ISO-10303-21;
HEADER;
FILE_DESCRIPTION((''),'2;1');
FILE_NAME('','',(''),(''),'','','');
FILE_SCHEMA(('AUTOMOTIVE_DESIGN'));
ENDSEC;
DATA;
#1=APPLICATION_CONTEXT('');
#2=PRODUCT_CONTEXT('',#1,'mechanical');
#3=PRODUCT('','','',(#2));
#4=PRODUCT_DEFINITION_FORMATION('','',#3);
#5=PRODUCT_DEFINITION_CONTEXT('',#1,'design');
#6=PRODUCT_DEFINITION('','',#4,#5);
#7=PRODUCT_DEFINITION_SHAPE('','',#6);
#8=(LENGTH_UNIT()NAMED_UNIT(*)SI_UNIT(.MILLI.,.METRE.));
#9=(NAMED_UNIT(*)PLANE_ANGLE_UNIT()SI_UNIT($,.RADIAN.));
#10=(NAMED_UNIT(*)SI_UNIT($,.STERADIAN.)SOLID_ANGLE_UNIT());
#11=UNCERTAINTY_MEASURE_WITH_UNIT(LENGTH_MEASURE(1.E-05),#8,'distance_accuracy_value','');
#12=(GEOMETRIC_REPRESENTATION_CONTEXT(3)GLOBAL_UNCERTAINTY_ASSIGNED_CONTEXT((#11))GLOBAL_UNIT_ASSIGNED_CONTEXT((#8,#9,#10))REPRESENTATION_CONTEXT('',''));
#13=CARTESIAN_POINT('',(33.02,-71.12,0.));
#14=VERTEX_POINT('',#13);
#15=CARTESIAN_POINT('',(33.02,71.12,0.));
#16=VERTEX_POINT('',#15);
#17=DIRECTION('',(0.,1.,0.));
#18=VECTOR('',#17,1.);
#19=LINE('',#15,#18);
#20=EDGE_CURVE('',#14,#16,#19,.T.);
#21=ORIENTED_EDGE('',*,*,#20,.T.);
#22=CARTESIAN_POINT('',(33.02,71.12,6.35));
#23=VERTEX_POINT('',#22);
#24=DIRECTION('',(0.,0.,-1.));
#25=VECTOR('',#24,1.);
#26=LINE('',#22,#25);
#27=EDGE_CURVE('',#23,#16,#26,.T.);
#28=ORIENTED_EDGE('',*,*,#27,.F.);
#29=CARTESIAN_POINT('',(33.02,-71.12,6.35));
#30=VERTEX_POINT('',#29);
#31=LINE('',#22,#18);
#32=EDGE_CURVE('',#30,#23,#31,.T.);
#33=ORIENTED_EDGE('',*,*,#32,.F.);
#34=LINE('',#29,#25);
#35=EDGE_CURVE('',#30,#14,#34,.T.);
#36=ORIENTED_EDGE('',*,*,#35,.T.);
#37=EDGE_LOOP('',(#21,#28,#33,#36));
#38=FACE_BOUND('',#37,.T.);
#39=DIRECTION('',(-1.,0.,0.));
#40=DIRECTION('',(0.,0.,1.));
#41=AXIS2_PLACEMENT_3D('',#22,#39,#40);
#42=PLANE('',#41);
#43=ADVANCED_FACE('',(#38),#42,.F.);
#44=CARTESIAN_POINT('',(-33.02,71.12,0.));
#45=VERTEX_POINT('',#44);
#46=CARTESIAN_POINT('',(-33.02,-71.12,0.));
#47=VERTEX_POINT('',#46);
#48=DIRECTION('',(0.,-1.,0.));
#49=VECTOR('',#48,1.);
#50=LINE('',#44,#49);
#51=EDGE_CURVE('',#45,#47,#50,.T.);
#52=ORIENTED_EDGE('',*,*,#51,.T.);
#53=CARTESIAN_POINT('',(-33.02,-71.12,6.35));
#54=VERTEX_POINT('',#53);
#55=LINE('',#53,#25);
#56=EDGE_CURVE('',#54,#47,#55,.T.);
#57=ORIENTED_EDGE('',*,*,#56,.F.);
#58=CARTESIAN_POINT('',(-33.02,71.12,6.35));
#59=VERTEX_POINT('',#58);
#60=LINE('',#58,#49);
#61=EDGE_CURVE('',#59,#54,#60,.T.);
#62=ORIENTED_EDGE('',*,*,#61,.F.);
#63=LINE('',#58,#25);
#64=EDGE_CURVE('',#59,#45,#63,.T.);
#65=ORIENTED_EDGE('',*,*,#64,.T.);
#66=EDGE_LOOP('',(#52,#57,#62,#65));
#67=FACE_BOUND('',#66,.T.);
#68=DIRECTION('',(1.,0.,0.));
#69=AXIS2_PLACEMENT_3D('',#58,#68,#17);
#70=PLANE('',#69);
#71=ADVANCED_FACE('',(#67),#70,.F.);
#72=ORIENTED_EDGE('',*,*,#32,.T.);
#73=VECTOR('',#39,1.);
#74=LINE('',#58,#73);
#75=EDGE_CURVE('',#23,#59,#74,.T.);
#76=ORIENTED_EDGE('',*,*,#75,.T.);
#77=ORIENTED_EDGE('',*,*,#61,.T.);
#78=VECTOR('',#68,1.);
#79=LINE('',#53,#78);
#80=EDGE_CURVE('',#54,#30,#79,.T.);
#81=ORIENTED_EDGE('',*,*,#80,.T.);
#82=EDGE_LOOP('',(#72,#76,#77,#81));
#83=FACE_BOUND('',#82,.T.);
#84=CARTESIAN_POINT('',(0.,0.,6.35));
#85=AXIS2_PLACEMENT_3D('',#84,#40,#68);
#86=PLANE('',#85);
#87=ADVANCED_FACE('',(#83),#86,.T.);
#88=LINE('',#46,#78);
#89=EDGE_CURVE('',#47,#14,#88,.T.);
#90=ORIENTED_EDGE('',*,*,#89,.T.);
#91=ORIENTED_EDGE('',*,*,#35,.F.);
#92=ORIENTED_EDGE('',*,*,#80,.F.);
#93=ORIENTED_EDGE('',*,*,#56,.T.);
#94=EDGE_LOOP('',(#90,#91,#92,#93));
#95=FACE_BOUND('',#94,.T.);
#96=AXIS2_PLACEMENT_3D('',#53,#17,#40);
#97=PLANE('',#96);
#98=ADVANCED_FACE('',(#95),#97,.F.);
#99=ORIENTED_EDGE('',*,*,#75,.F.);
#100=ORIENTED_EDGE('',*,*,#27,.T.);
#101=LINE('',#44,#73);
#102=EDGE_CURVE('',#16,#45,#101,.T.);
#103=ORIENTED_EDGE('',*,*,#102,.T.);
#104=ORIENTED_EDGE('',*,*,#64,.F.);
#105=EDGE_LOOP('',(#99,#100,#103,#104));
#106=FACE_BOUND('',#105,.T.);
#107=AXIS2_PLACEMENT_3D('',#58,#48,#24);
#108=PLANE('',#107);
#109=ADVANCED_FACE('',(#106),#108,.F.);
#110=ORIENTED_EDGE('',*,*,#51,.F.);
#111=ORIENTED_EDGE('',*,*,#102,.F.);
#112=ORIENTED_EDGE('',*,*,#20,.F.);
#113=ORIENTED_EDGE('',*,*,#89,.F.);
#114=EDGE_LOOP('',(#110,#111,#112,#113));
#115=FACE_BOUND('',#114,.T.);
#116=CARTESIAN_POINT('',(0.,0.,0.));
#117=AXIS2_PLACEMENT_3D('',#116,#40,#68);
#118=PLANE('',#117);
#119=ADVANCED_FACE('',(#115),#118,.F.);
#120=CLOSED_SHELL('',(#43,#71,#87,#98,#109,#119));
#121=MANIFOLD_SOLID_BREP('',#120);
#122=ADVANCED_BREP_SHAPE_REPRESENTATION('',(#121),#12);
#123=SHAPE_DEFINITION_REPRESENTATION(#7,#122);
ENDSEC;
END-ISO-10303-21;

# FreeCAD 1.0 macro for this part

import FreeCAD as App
import Part
import Sketcher
Q = App.Units.Quantity


def add_polygon(sketch, points):
    """Adds a closed chain of lines whose ends are joined by coincident constraints."""
    first, n = sketch.GeometryCount, len(points)
    for a, b in zip(points, points[1:] + points[:1]):
        sketch.addGeometry(Part.LineSegment(App.Vector(*a, 0), App.Vector(*b, 0)), False)
    for i in range(n):
        sketch.addConstraint(Sketcher.Constraint("Coincident", first + i, 2, first + (i + 1) % n, 1))

doc = App.newDocument("Part")
params = doc.addObject("Spreadsheet::Sheet", "Params")
for row, (alias, value) in enumerate([
    ("sketch1_width", "2.6 in"),
    ("sketch1_height", "5.6 in"),
    ("pad1_length", "0.25 in"),
], start=1):
    params.set(f"A{row}", alias)
    params.set(f"B{row}", "=" + value)
    params.setAlias(f"B{row}", alias)

body = doc.addObject("PartDesign::Body", "Body")

# Sketch on XY plane
sketch1 = body.newObject("Sketcher::SketchObject", "Sketch")
sketch1.AttachmentSupport = (doc.getObject("XY_Plane"), [""])
sketch1.MapMode = "FlatFace"
add_polygon(sketch1, [(-33, 71), (-33, -71), (33, -71), (33, 71)])  # lines 0-3
sketch1.addConstraint(Sketcher.Constraint("Vertical", 0))
sketch1.addConstraint(Sketcher.Constraint("Horizontal", 1))
sketch1.addConstraint(Sketcher.Constraint("Vertical", 2))
sketch1.addConstraint(Sketcher.Constraint("Horizontal", 3))
sketch1.addConstraint(Sketcher.Constraint("Symmetric", 0, 2, 2, 2, -1, 1))
sketch1.addConstraint(Sketcher.Constraint("DistanceX", 1, 1, 1, 2, Q("2.6 in")))
sketch1.addConstraint(Sketcher.Constraint("DistanceY", 0, 2, 0, 1, Q("5.6 in")))
sketch1.setExpression("Constraints[9]", "Params.sketch1_width")
sketch1.setExpression("Constraints[10]", "Params.sketch1_height")
pad1 = body.newObject("PartDesign::Pad", "Pad")
pad1.Profile = sketch1
pad1.setExpression("Length", "Params.pad1_length")

doc.recompute()
